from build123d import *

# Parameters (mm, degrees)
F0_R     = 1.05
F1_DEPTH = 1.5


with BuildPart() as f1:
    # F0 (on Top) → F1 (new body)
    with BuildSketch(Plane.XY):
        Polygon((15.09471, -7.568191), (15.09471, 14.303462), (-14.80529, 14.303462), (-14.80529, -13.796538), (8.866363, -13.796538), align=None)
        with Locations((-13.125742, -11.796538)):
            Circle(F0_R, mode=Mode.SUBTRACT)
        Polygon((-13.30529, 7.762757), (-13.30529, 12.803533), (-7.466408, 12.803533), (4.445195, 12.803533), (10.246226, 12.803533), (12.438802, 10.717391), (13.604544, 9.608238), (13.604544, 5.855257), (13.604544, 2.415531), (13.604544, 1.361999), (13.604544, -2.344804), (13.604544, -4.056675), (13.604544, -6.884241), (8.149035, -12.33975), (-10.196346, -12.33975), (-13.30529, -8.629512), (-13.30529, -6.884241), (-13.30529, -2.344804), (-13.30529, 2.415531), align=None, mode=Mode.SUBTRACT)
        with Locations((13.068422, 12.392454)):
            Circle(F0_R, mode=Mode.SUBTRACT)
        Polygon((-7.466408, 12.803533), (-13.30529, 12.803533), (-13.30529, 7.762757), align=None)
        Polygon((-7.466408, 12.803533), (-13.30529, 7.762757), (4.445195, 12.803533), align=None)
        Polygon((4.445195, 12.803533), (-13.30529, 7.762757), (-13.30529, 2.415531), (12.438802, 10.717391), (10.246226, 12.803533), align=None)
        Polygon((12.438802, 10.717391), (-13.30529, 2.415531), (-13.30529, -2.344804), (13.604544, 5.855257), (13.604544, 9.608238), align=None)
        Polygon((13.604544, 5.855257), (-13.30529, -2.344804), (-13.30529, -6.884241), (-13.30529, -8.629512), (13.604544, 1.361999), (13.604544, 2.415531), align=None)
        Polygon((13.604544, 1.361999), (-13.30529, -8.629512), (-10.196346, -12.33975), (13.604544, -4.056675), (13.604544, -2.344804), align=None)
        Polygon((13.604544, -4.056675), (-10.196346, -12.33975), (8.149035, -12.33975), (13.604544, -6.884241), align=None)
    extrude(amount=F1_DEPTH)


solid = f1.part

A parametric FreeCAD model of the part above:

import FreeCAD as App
import Part
import Sketcher
Q = App.Units.Quantity

doc = App.newDocument("Part")
params = doc.addObject("Spreadsheet::Sheet", "Params")
for row, (alias, value) in enumerate([
    ("sketch1_diameter", "2.1 mm"),
    ("sketch1_width", "29.9 mm"),
    ("sketch1_height", "28.1 mm"),
    ("pad1_length", "1.5 mm"),
], start=1):
    params.set(f"A{row}", alias)
    params.set(f"B{row}", "=" + value)
    params.setAlias(f"B{row}", alias)

body = doc.addObject("PartDesign::Body", "Body")

# Sketch on XY plane
sketch1 = body.newObject("Sketcher::SketchObject", "Sketch")
sketch1.AttachmentSupport = (doc.getObject("XY_Plane"), [""])
sketch1.MapMode = "FlatFace"
sketch1.addGeometry(Part.LineSegment(App.Vector(15.09471, -7.568191, 0), App.Vector(15.09471, 14.303462, 0)), False)
sketch1.addGeometry(Part.LineSegment(App.Vector(15.09471, 14.303462, 0), App.Vector(-14.80529, 14.303462, 0)), False)
sketch1.addGeometry(Part.LineSegment(App.Vector(-14.80529, 14.303462, 0), App.Vector(-14.80529, -13.796538, 0)), False)
sketch1.addGeometry(Part.LineSegment(App.Vector(-14.80529, -13.796538, 0), App.Vector(8.866363, -13.796538, 0)), False)
sketch1.addGeometry(Part.LineSegment(App.Vector(8.866363, -13.796538, 0), App.Vector(15.09471, -7.568191, 0)), False)
sketch1.addGeometry(Part.Circle(App.Vector(-13.125742, -11.796538, 0), App.Vector(0, 0, 1), 1.05), False)
sketch1.addGeometry(Part.Circle(App.Vector(13.068422, 12.392454, 0), App.Vector(0, 0, 1), 1.05), False)
sketch1.addConstraint(Sketcher.Constraint("Coincident", 0, 2, 1, 1))
sketch1.addConstraint(Sketcher.Constraint("Coincident", 1, 2, 2, 1))
sketch1.addConstraint(Sketcher.Constraint("Coincident", 2, 2, 3, 1))
sketch1.addConstraint(Sketcher.Constraint("Coincident", 3, 2, 4, 1))
sketch1.addConstraint(Sketcher.Constraint("Coincident", 4, 2, 0, 1))
sketch1.addConstraint(Sketcher.Constraint("Vertical", 0))
sketch1.addConstraint(Sketcher.Constraint("Horizontal", 1))
sketch1.addConstraint(Sketcher.Constraint("Vertical", 2))
sketch1.addConstraint(Sketcher.Constraint("Horizontal", 3))
sketch1.addConstraint(Sketcher.Constraint("Equal", 5, 6))
sketch1.addConstraint(Sketcher.Constraint("Diameter", 5, 2.1))
sketch1.addConstraint(Sketcher.Constraint("Angle", 4, Q("45 deg")))
sketch1.addConstraint(Sketcher.Constraint("DistanceX", 1, 2, 1, 1, 29.9))
sketch1.addConstraint(Sketcher.Constraint("DistanceY", 2, 2, 2, 1, 28.1))
sketch1.addConstraint(Sketcher.Constraint("DistanceY", 2, 2, 5, 3, 2.0))
sketch1.addConstraint(Sketcher.Constraint("DistanceX", 3, 1, 3, 2, 23.671653))
sketch1.addConstraint(Sketcher.Constraint("DistanceX", -1, 1, 0, 2, 15.09471))
sketch1.addConstraint(Sketcher.Constraint("DistanceY", 4, 2, -1, 1, 7.568191))
sketch1.addConstraint(Sketcher.Constraint("DistanceY", 5, 3, 6, 3, 24.188992))
sketch1.addConstraint(Sketcher.Constraint("DistanceX", 1, 2, 6, 3, 27.873712))
sketch1.addConstraint(Sketcher.Constraint("DistanceX", 5, 3, -1, 1, 13.125742))
sketch1.setExpression("Constraints[10]", "Params.sketch1_diameter")
sketch1.setExpression("Constraints[12]", "Params.sketch1_width")
sketch1.setExpression("Constraints[13]", "Params.sketch1_height")
pad1 = body.newObject("PartDesign::Pad", "Pad")
pad1.Profile = sketch1
pad1.setExpression("Length", "Params.pad1_length")

doc.recompute()
